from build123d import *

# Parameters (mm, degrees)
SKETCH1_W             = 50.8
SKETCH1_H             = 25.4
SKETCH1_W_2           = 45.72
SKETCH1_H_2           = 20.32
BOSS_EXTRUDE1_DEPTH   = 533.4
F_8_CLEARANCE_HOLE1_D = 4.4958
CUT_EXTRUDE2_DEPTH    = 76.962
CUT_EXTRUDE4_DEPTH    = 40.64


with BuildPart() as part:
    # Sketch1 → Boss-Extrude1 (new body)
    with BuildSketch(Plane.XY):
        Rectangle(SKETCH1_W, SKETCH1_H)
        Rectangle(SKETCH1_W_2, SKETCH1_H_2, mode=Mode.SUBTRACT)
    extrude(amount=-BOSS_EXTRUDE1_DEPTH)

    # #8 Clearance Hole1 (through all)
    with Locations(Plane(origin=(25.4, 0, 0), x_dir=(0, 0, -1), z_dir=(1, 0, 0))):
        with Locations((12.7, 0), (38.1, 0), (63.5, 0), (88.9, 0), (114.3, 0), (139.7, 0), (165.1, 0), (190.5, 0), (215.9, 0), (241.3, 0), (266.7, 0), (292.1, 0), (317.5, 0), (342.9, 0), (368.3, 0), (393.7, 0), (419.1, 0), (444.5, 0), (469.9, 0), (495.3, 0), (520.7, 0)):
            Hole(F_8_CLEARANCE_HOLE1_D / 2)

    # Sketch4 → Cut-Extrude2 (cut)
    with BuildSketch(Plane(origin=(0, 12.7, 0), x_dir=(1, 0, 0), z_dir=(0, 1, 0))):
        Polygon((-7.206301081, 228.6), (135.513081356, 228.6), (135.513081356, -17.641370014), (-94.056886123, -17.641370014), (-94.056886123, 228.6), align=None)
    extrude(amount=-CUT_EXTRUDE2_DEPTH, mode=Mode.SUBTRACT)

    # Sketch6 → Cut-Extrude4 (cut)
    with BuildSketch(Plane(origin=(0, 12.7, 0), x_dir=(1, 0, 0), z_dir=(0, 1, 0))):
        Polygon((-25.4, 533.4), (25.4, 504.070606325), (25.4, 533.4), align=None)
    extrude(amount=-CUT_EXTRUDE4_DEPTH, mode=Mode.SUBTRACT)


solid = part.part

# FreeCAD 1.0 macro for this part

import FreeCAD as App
import Part
import Sketcher
Q = App.Units.Quantity


def add_polygon(sketch, points):
    """Adds a closed chain of lines whose ends are joined by coincident constraints."""
    first, n = sketch.GeometryCount, len(points)
    for a, b in zip(points, points[1:] + points[:1]):
        sketch.addGeometry(Part.LineSegment(App.Vector(*a, 0), App.Vector(*b, 0)), False)
    for i in range(n):
        sketch.addConstraint(Sketcher.Constraint("Coincident", first + i, 2, first + (i + 1) % n, 1))

doc = App.newDocument("Part")
body = doc.addObject("PartDesign::Body", "Body")

# Sketch on XY plane
sketch1 = doc.addObject("Sketcher::SketchObject", "Sketch")
body.addObject(sketch1)
sketch1.AttachmentSupport = (doc.XY_Plane, [""])
sketch1.MapMode = "FlatFace"
add_polygon(sketch1, [(-25.4, 12.7), (-25.4, -12.7), (25.4, -12.7), (25.4, 12.7)])  # lines 0-3
add_polygon(sketch1, [(22.86, -10.16), (-22.86, -10.16), (-22.86, 10.16), (22.86, 10.16)])  # lines 4-7
sketch1.addConstraint(Sketcher.Constraint("Vertical", 0))
sketch1.addConstraint(Sketcher.Constraint("Horizontal", 1))
sketch1.addConstraint(Sketcher.Constraint("Vertical", 2))
sketch1.addConstraint(Sketcher.Constraint("Horizontal", 3))
sketch1.addConstraint(Sketcher.Constraint("Horizontal", 4))
sketch1.addConstraint(Sketcher.Constraint("Vertical", 5))
sketch1.addConstraint(Sketcher.Constraint("Horizontal", 6))
sketch1.addConstraint(Sketcher.Constraint("Vertical", 7))
sketch1.addConstraint(Sketcher.Constraint("Symmetric", 0, 2, 2, 2, -1, 1))
sketch1.addConstraint(Sketcher.Constraint("Symmetric", 4, 2, 6, 2, -1, 1))
sketch1.addConstraint(Sketcher.Constraint("DistanceX", 1, 1, 1, 2, Q("2 in")))
sketch1.addConstraint(Sketcher.Constraint("DistanceY", 0, 2, 0, 1, Q("1 in")))
sketch1.addConstraint(Sketcher.Constraint("DistanceX", 4, 2, 4, 1, Q("1.8 in")))
sketch1.addConstraint(Sketcher.Constraint("DistanceY", 5, 1, 5, 2, Q("0.8 in")))
pad1 = doc.addObject("PartDesign::Pad", "Pad")
body.addObject(pad1)
pad1.Profile = sketch1
pad1.Length = Q("21 in")
pad1.Reversed = True

# Sketch on YZ plane
sketch2 = doc.addObject("Sketcher::SketchObject", "Sketch001")
body.addObject(sketch2)
sketch2.AttachmentSupport = (doc.YZ_Plane, [""])
sketch2.MapMode = "FlatFace"
sketch2.AttachmentOffset = App.Placement(App.Vector(0, 0, 1 * 25.4), App.Rotation())
sketch2.addGeometry(Part.Circle(App.Vector(0, -12.7, 0), App.Vector(0, 0, 1), 2.2479), False)
sketch2.addGeometry(Part.Circle(App.Vector(0, -38.1, 0), App.Vector(0, 0, 1), 2.2479), False)
sketch2.addGeometry(Part.Circle(App.Vector(0, -63.5, 0), App.Vector(0, 0, 1), 2.2479), False)
sketch2.addGeometry(Part.Circle(App.Vector(0, -88.9, 0), App.Vector(0, 0, 1), 2.2479), False)
sketch2.addGeometry(Part.Circle(App.Vector(0, -114.3, 0), App.Vector(0, 0, 1), 2.2479), False)
sketch2.addGeometry(Part.Circle(App.Vector(0, -139.7, 0), App.Vector(0, 0, 1), 2.2479), False)
sketch2.addGeometry(Part.Circle(App.Vector(0, -165.1, 0), App.Vector(0, 0, 1), 2.2479), False)
sketch2.addGeometry(Part.Circle(App.Vector(0, -190.5, 0), App.Vector(0, 0, 1), 2.2479), False)
sketch2.addGeometry(Part.Circle(App.Vector(0, -215.9, 0), App.Vector(0, 0, 1), 2.2479), False)
sketch2.addGeometry(Part.Circle(App.Vector(0, -241.3, 0), App.Vector(0, 0, 1), 2.2479), False)
sketch2.addGeometry(Part.Circle(App.Vector(0, -266.7, 0), App.Vector(0, 0, 1), 2.2479), False)
sketch2.addGeometry(Part.Circle(App.Vector(0, -292.1, 0), App.Vector(0, 0, 1), 2.2479), False)
sketch2.addGeometry(Part.Circle(App.Vector(0, -317.5, 0), App.Vector(0, 0, 1), 2.2479), False)
sketch2.addGeometry(Part.Circle(App.Vector(0, -342.9, 0), App.Vector(0, 0, 1), 2.2479), False)
sketch2.addGeometry(Part.Circle(App.Vector(0, -368.3, 0), App.Vector(0, 0, 1), 2.2479), False)
sketch2.addGeometry(Part.Circle(App.Vector(0, -393.7, 0), App.Vector(0, 0, 1), 2.2479), False)
sketch2.addGeometry(Part.Circle(App.Vector(0, -419.1, 0), App.Vector(0, 0, 1), 2.2479), False)
sketch2.addGeometry(Part.Circle(App.Vector(0, -444.5, 0), App.Vector(0, 0, 1), 2.2479), False)
sketch2.addGeometry(Part.Circle(App.Vector(0, -469.9, 0), App.Vector(0, 0, 1), 2.2479), False)
sketch2.addGeometry(Part.Circle(App.Vector(0, -495.3, 0), App.Vector(0, 0, 1), 2.2479), False)
sketch2.addGeometry(Part.Circle(App.Vector(0, -520.7, 0), App.Vector(0, 0, 1), 2.2479), False)
sketch2.addConstraint(Sketcher.Constraint("Equal", 0, 1))
sketch2.addConstraint(Sketcher.Constraint("Equal", 1, 2))
sketch2.addConstraint(Sketcher.Constraint("Equal", 2, 3))
sketch2.addConstraint(Sketcher.Constraint("Equal", 3, 4))
sketch2.addConstraint(Sketcher.Constraint("Equal", 4, 5))
sketch2.addConstraint(Sketcher.Constraint("Equal", 5, 6))
sketch2.addConstraint(Sketcher.Constraint("Equal", 6, 7))
sketch2.addConstraint(Sketcher.Constraint("Equal", 7, 8))
sketch2.addConstraint(Sketcher.Constraint("Equal", 8, 9))
sketch2.addConstraint(Sketcher.Constraint("Equal", 9, 10))
sketch2.addConstraint(Sketcher.Constraint("Equal", 10, 11))
sketch2.addConstraint(Sketcher.Constraint("Equal", 11, 12))
sketch2.addConstraint(Sketcher.Constraint("Equal", 12, 13))
sketch2.addConstraint(Sketcher.Constraint("Equal", 13, 14))
sketch2.addConstraint(Sketcher.Constraint("Equal", 14, 15))
sketch2.addConstraint(Sketcher.Constraint("Equal", 15, 16))
sketch2.addConstraint(Sketcher.Constraint("Equal", 16, 17))
sketch2.addConstraint(Sketcher.Constraint("Equal", 17, 18))
sketch2.addConstraint(Sketcher.Constraint("Equal", 18, 19))
sketch2.addConstraint(Sketcher.Constraint("Equal", 19, 20))
sketch2.addConstraint(Sketcher.Constraint("PointOnObject", 0, 3, -2))
sketch2.addConstraint(Sketcher.Constraint("PointOnObject", 1, 3, -2))
sketch2.addConstraint(Sketcher.Constraint("PointOnObject", 2, 3, -2))
sketch2.addConstraint(Sketcher.Constraint("PointOnObject", 3, 3, -2))
sketch2.addConstraint(Sketcher.Constraint("PointOnObject", 4, 3, -2))
sketch2.addConstraint(Sketcher.Constraint("PointOnObject", 5, 3, -2))
sketch2.addConstraint(Sketcher.Constraint("PointOnObject", 6, 3, -2))
sketch2.addConstraint(Sketcher.Constraint("PointOnObject", 7, 3, -2))
sketch2.addConstraint(Sketcher.Constraint("PointOnObject", 8, 3, -2))
sketch2.addConstraint(Sketcher.Constraint("PointOnObject", 9, 3, -2))
sketch2.addConstraint(Sketcher.Constraint("PointOnObject", 10, 3, -2))
sketch2.addConstraint(Sketcher.Constraint("PointOnObject", 11, 3, -2))
sketch2.addConstraint(Sketcher.Constraint("PointOnObject", 12, 3, -2))
sketch2.addConstraint(Sketcher.Constraint("PointOnObject", 13, 3, -2))
sketch2.addConstraint(Sketcher.Constraint("PointOnObject", 14, 3, -2))
sketch2.addConstraint(Sketcher.Constraint("PointOnObject", 15, 3, -2))
sketch2.addConstraint(Sketcher.Constraint("PointOnObject", 16, 3, -2))
sketch2.addConstraint(Sketcher.Constraint("PointOnObject", 17, 3, -2))
sketch2.addConstraint(Sketcher.Constraint("PointOnObject", 18, 3, -2))
sketch2.addConstraint(Sketcher.Constraint("PointOnObject", 19, 3, -2))
sketch2.addConstraint(Sketcher.Constraint("PointOnObject", 20, 3, -2))
sketch2.addConstraint(Sketcher.Constraint("Diameter", 0, Q("0.177 in")))
sketch2.addConstraint(Sketcher.Constraint("DistanceY", 1, 3, 0, 3, Q("1 in")))
sketch2.addConstraint(Sketcher.Constraint("DistanceY", 2, 3, 1, 3, Q("1 in")))
sketch2.addConstraint(Sketcher.Constraint("DistanceY", 3, 3, 2, 3, Q("1 in")))
sketch2.addConstraint(Sketcher.Constraint("DistanceY", 4, 3, 3, 3, Q("1 in")))
sketch2.addConstraint(Sketcher.Constraint("DistanceY", 5, 3, 4, 3, Q("1 in")))
sketch2.addConstraint(Sketcher.Constraint("DistanceY", 6, 3, 5, 3, Q("1 in")))
sketch2.addConstraint(Sketcher.Constraint("DistanceY", 7, 3, 6, 3, Q("1 in")))
sketch2.addConstraint(Sketcher.Constraint("DistanceY", 8, 3, 7, 3, Q("1 in")))
sketch2.addConstraint(Sketcher.Constraint("DistanceY", 9, 3, 8, 3, Q("1 in")))
sketch2.addConstraint(Sketcher.Constraint("DistanceY", 10, 3, 9, 3, Q("1 in")))
sketch2.addConstraint(Sketcher.Constraint("DistanceY", 11, 3, 10, 3, Q("1 in")))
sketch2.addConstraint(Sketcher.Constraint("DistanceY", 12, 3, 11, 3, Q("1 in")))
sketch2.addConstraint(Sketcher.Constraint("DistanceY", 13, 3, 12, 3, Q("1 in")))
sketch2.addConstraint(Sketcher.Constraint("DistanceY", 14, 3, 13, 3, Q("1 in")))
sketch2.addConstraint(Sketcher.Constraint("DistanceY", 15, 3, 14, 3, Q("1 in")))
sketch2.addConstraint(Sketcher.Constraint("DistanceY", 16, 3, 15, 3, Q("1 in")))
sketch2.addConstraint(Sketcher.Constraint("DistanceY", 17, 3, 16, 3, Q("1 in")))
sketch2.addConstraint(Sketcher.Constraint("DistanceY", 18, 3, 17, 3, Q("1 in")))
sketch2.addConstraint(Sketcher.Constraint("DistanceY", 19, 3, 18, 3, Q("1 in")))
sketch2.addConstraint(Sketcher.Constraint("DistanceY", 20, 3, 19, 3, Q("1 in")))
sketch2.addConstraint(Sketcher.Constraint("DistanceY", 0, 3, -1, 1, Q("0.5 in")))
doc.recompute()
hole = doc.addObject("PartDesign::Hole", "Hole")
body.addObject(hole)
hole.Profile = sketch2
hole.ThreadType = "None"
hole.Diameter = Q("0.177 in")
hole.DepthType = "ThroughAll"

# Sketch on XZ plane
sketch3 = doc.addObject("Sketcher::SketchObject", "Sketch002")
body.addObject(sketch3)
sketch3.AttachmentSupport = (doc.XZ_Plane, [""])
sketch3.MapMode = "FlatFace"
sketch3.AttachmentOffset = App.Placement(App.Vector(0, 0, -0.5 * 25.4), App.Rotation())
add_polygon(sketch3, [(135.513081, -228.6), (-94.056886, -228.6), (-94.056886, 17.64137), (135.513081, 17.64137)])  # lines 0-3
sketch3.addConstraint(Sketcher.Constraint("Horizontal", 0))
sketch3.addConstraint(Sketcher.Constraint("Vertical", 1))
sketch3.addConstraint(Sketcher.Constraint("Horizontal", 2))
sketch3.addConstraint(Sketcher.Constraint("Vertical", 3))
sketch3.addConstraint(Sketcher.Constraint("DistanceY", 0, 2, -1, 1, Q("9 in")))
sketch3.addConstraint(Sketcher.Constraint("DistanceY", 1, 1, 1, 2, 246.24137))
sketch3.addConstraint(Sketcher.Constraint("DistanceX", 0, 2, 0, 1, 229.569967))
sketch3.addConstraint(Sketcher.Constraint("DistanceX", -1, 1, 2, 2, 135.513081))
pocket1 = doc.addObject("PartDesign::Pocket", "Pocket")
body.addObject(pocket1)
pocket1.Profile = sketch3
pocket1.Length = Q("3.03 in")
pocket1.Reversed = True

# Sketch on XZ plane
sketch4 = doc.addObject("Sketcher::SketchObject", "Sketch003")
body.addObject(sketch4)
sketch4.AttachmentSupport = (doc.XZ_Plane, [""])
sketch4.MapMode = "FlatFace"
sketch4.AttachmentOffset = App.Placement(App.Vector(0, 0, -0.5 * 25.4), App.Rotation())
add_polygon(sketch4, [(-25.4, -533.4), (25.4, -504.070606), (25.4, -533.4)])  # lines 0-2
sketch4.addConstraint(Sketcher.Constraint("Vertical", 1))
sketch4.addConstraint(Sketcher.Constraint("Horizontal", 2))
sketch4.addConstraint(Sketcher.Constraint("DistanceX", 2, 2, 2, 1, Q("2 in")))
sketch4.addConstraint(Sketcher.Constraint("DistanceX", -1, 1, 0, 2, Q("1 in")))
sketch4.addConstraint(Sketcher.Constraint("DistanceY", 1, 2, -1, 1, Q("21 in")))
sketch4.addConstraint(Sketcher.Constraint("Angle", 0, Q("30 deg")))
pocket2 = doc.addObject("PartDesign::Pocket", "Pocket001")
body.addObject(pocket2)
pocket2.Profile = sketch4
pocket2.Length = Q("1.6 in")
pocket2.Reversed = True

doc.recompute()
